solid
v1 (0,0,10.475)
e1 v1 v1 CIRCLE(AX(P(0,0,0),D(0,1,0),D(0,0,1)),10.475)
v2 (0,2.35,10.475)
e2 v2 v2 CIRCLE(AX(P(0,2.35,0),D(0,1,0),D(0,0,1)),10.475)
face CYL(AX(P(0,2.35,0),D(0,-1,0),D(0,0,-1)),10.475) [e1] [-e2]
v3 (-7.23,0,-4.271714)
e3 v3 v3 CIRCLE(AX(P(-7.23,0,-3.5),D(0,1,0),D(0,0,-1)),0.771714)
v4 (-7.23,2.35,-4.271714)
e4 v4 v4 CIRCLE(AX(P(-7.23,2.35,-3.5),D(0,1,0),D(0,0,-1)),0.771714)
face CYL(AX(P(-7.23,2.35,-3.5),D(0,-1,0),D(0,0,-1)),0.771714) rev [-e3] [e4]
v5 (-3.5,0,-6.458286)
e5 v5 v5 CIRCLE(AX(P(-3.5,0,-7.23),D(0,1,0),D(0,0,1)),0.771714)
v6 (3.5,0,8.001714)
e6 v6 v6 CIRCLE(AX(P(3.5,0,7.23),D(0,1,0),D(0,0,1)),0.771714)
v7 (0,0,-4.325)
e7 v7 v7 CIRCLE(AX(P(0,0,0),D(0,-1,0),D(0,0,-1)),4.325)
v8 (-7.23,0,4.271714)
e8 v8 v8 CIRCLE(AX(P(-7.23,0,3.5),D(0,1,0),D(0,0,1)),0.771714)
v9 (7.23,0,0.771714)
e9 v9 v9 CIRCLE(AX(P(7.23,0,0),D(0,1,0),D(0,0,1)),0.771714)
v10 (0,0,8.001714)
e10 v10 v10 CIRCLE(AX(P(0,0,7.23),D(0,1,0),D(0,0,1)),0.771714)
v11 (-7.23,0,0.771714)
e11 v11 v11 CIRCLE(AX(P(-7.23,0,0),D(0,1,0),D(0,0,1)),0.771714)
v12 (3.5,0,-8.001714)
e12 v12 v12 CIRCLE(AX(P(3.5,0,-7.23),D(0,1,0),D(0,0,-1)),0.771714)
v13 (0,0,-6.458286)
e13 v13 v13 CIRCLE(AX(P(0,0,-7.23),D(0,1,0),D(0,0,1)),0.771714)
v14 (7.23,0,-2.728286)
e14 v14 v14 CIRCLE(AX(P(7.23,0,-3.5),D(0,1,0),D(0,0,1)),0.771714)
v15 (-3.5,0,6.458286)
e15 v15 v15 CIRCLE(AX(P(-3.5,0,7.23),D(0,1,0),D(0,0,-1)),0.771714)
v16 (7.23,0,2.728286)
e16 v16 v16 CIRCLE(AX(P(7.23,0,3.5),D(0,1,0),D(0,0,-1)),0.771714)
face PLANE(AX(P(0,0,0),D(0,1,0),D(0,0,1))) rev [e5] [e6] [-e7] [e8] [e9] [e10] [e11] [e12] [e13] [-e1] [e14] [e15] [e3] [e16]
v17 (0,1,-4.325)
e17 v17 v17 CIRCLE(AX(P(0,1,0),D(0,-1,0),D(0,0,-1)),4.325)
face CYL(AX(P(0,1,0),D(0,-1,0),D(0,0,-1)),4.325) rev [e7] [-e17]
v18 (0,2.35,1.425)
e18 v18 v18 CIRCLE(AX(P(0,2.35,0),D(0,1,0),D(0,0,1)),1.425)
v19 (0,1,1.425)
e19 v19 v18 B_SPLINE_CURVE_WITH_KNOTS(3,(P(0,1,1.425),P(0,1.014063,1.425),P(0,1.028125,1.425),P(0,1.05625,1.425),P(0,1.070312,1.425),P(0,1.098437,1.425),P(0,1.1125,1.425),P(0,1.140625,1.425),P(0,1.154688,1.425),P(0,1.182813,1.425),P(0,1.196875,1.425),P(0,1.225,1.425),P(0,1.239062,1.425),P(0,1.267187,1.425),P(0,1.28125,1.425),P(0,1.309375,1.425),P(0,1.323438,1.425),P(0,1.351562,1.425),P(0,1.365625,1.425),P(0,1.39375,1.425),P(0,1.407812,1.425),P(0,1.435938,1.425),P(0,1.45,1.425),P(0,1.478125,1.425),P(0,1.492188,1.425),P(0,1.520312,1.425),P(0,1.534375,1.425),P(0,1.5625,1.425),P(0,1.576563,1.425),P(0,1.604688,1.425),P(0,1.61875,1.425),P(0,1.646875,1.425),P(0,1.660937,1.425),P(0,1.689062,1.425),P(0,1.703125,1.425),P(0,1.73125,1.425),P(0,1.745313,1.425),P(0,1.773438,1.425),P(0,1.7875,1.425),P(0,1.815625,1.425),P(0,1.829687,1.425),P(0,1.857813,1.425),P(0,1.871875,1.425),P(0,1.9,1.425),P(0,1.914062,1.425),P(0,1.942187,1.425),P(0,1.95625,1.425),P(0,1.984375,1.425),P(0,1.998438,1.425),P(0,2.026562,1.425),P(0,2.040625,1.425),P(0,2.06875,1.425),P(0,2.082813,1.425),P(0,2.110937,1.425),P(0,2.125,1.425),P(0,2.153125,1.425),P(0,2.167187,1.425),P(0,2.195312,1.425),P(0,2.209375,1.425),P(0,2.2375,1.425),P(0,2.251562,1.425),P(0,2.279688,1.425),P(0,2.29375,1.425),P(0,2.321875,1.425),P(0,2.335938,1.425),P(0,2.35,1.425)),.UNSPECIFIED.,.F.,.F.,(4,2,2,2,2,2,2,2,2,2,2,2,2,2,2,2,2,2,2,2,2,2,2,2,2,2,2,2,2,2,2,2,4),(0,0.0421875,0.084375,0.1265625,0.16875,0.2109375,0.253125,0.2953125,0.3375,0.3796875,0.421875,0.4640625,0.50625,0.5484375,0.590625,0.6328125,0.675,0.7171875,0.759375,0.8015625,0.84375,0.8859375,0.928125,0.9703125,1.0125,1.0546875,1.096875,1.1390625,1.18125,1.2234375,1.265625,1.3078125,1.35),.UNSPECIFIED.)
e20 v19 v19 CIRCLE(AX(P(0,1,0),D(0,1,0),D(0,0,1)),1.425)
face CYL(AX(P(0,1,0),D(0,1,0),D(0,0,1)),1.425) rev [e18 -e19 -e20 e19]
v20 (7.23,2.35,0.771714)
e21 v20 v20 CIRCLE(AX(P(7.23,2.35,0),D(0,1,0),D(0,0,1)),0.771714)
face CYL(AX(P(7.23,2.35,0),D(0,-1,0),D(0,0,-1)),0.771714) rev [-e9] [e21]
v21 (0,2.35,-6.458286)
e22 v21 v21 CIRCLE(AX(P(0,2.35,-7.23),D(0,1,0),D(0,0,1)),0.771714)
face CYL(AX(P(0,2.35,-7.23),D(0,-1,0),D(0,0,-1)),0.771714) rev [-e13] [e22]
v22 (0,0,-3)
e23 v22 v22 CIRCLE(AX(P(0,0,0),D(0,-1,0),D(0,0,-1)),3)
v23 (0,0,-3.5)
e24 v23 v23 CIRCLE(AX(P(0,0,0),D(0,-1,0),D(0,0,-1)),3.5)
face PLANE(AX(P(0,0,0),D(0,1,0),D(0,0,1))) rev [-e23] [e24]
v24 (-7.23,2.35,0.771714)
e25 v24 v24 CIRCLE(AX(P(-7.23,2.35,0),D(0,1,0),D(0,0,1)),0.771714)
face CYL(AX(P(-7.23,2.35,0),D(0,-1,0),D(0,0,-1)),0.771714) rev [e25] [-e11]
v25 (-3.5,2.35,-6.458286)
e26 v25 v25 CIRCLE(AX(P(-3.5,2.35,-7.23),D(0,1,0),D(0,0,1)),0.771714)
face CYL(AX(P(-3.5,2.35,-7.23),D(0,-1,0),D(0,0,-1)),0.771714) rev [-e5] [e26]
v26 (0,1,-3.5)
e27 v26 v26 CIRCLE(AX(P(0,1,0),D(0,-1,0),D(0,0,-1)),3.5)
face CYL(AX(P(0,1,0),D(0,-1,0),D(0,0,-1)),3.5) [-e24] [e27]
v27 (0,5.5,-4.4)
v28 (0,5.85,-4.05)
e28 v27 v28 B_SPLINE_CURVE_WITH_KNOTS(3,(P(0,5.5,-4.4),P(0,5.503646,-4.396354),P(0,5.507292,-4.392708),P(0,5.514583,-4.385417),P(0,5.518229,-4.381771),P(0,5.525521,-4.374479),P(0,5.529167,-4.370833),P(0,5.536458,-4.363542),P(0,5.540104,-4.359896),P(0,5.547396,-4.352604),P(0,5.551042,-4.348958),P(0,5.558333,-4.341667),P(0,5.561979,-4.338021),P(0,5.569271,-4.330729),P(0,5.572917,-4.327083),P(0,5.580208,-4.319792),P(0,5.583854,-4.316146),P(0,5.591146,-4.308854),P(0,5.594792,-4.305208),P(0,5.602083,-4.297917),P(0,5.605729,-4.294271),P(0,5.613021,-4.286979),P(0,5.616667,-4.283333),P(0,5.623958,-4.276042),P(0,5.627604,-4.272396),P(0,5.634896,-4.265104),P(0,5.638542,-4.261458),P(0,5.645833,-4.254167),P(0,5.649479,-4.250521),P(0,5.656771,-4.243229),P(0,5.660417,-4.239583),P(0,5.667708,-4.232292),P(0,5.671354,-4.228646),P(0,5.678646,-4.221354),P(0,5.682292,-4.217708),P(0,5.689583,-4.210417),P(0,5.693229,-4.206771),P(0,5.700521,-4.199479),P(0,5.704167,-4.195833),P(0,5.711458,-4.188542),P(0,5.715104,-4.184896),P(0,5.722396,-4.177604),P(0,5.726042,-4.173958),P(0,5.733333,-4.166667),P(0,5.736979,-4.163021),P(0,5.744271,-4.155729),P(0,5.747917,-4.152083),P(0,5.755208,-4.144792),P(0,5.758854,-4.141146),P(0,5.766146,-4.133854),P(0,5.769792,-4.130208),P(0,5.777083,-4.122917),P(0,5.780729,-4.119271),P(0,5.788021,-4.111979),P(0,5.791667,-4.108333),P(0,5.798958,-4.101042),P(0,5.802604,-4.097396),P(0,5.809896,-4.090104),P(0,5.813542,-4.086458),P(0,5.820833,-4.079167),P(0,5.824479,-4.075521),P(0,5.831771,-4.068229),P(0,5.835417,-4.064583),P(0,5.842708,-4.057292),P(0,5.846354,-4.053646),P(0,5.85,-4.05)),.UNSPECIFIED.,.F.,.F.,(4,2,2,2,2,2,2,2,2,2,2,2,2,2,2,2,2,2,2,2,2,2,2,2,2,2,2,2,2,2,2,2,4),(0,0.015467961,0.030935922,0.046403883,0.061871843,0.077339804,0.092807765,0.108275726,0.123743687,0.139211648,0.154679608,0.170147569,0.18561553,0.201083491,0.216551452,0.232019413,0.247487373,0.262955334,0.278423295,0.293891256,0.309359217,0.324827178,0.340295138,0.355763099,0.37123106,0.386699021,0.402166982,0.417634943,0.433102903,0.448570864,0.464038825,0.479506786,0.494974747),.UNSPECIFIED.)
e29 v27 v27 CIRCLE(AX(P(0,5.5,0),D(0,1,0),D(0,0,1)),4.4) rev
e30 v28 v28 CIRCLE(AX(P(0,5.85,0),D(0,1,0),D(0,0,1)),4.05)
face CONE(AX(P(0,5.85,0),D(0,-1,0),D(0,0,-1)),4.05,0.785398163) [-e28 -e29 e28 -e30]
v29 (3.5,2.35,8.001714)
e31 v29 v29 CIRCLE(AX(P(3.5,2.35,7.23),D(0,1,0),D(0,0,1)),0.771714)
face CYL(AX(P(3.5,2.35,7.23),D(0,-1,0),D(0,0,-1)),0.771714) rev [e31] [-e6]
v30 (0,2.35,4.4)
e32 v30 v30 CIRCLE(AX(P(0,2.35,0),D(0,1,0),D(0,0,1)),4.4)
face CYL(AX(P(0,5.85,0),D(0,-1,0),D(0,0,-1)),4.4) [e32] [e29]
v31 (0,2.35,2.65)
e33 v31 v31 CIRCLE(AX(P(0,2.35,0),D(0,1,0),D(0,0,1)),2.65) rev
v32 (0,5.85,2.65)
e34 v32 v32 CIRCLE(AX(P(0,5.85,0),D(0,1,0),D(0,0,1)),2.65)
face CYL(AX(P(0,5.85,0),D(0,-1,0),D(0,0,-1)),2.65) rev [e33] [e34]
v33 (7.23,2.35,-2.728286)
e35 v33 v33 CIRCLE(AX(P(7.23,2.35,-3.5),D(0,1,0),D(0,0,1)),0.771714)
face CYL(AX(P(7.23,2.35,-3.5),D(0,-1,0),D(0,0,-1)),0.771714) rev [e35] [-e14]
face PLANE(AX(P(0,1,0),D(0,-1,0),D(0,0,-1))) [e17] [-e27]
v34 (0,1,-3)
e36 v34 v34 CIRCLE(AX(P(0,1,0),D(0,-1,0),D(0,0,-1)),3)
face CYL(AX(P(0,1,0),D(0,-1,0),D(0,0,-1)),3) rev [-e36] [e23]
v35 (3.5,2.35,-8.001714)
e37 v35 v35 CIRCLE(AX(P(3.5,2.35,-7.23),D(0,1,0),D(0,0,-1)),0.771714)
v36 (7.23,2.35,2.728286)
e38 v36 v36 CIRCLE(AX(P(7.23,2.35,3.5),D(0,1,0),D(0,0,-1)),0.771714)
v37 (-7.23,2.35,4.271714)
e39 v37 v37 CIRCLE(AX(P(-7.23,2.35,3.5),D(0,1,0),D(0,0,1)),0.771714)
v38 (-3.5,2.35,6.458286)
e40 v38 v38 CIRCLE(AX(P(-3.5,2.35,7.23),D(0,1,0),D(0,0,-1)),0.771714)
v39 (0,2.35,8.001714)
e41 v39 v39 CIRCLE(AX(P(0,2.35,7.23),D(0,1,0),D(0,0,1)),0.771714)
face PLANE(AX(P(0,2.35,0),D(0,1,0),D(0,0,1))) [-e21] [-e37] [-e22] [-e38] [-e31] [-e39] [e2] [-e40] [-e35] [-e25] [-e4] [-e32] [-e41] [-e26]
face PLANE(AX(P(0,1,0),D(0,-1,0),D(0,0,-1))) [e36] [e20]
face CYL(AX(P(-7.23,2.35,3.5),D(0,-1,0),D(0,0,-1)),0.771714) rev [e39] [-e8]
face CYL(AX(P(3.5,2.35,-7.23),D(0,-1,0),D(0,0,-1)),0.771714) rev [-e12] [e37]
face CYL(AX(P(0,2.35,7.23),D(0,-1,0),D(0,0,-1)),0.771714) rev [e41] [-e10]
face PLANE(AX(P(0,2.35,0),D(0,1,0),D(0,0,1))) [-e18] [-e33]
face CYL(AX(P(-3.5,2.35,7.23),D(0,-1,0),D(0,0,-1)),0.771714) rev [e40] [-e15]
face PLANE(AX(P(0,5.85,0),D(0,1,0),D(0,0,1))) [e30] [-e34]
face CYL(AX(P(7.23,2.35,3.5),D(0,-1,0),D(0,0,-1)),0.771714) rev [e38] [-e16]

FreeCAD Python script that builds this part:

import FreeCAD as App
import Part
import Sketcher

V = App.Vector
Q = App.Units.Quantity


def edges_at(feature, points):
    """Names of the edges that pass closest to the given points."""
    edges = feature.Shape.Edges
    near = lambda p: min(range(len(edges)), key=lambda i: edges[i].distToShape(Part.Vertex(*p))[0])
    return sorted({f"Edge{near(p) + 1}" for p in points})

doc = App.newDocument("Part")
params = doc.addObject("Spreadsheet::Sheet", "Params")
for row, (alias, value) in enumerate([
    ("sketch1_diameter", "8.8 mm"),
    ("sketch1_diameter2", "20.95 mm"),
    ("pad1_length", "2.35 mm"),
    ("sketch2_diameter", "8.8 mm"),
    ("sketch2_diameter2", "5.3 mm"),
    ("pad2_length", "3.5 mm"),
    ("chamfer_size", "0.35 mm"),
    ("sketch3_diameter", "8.8 mm"),
    ("pad3_length", "2.35 mm"),
    ("sketch4_diameter", "6 mm"),
    ("pocket1_length", "1 mm"),
    ("sketch5_diameter", "2.85 mm"),
    ("pocket2_length", "1.35 mm"),
    ("sketch6_diameter", "7 mm"),
    ("sketch6_diameter2", "8.65 mm"),
    ("pocket3_length", "1 mm"),
], start=1):
    params.set(f"A{row}", alias)
    params.set(f"B{row}", "=" + value)
    params.setAlias(f"B{row}", alias)

body = doc.addObject("PartDesign::Body", "Body")

sketch1 = body.newObject("Sketcher::SketchObject", "Sketch")
sketch1.AttachmentSupport = (doc.getObject("XZ_Plane"), [""])
sketch1.MapMode = "FlatFace"
sketch1.addGeometry([
    Part.Circle(V(0, 0, 0), V(0, 0, 1), 10.5),
    Part.Circle(V(-7.2, -3.5, 0), V(0, 0, 1), 0.8),
    Part.Circle(V(-3.5, -7.2, 0), V(0, 0, 1), 0.8),
    Part.Circle(V(-7.2, 0, 0), V(0, 0, 1), 0.8),
    Part.Circle(V(-7.2, 3.5, 0), V(0, 0, 1), 0.8),
    Part.Circle(V(-3.5, 7.2, 0), V(0, 0, 1), 0.8),
    Part.Circle(V(0, -7.2, 0), V(0, 0, 1), 0.8),
    Part.Circle(V(3.5, -7.2, 0), V(0, 0, 1), 0.8),
    Part.Circle(V(7.2, -3.5, 0), V(0, 0, 1), 0.8),
    Part.Circle(V(7.2, 0, 0), V(0, 0, 1), 0.8),
    Part.Circle(V(0, 0, 0), V(0, 0, 1), 4.4),
    Part.Circle(V(0, 7.2, 0), V(0, 0, 1), 0.8),
    Part.Circle(V(3.5, 7.2, 0), V(0, 0, 1), 0.8),
    Part.Circle(V(7.2, 3.5, 0), V(0, 0, 1), 0.8),
], False)
sketch1.addConstraint([
    Sketcher.Constraint("Coincident", 0, 3, -1, 1),
    Sketcher.Constraint("Coincident", 10, 3, -1, 1),
    Sketcher.Constraint("Equal", 1, 2),
    Sketcher.Constraint("Equal", 2, 3),
    Sketcher.Constraint("Equal", 3, 4),
    Sketcher.Constraint("Equal", 4, 5),
    Sketcher.Constraint("Equal", 5, 6),
    Sketcher.Constraint("Equal", 6, 7),
    Sketcher.Constraint("Equal", 7, 8),
    Sketcher.Constraint("Equal", 8, 9),
    Sketcher.Constraint("Equal", 9, 11),
    Sketcher.Constraint("Equal", 11, 12),
    Sketcher.Constraint("Equal", 12, 13),
    Sketcher.Constraint("Symmetric", 5, 3, 7, 3, -1, 1),
    Sketcher.Constraint("Symmetric", 4, 3, 8, 3, -1, 1),
    Sketcher.Constraint("Symmetric", 3, 3, 9, 3, -1, 1),
    Sketcher.Constraint("Symmetric", 6, 3, 11, 3, -1, 1),
    Sketcher.Constraint("Symmetric", 2, 3, 12, 3, -1, 1),
    Sketcher.Constraint("Symmetric", 1, 3, 13, 3, -1, 1),
    Sketcher.Constraint("Symmetric", 2, 3, 7, 3, -2),
    Sketcher.Constraint("Symmetric", 1, 3, 8, 3, -2),
    Sketcher.Constraint("PointOnObject", 3, 3, -1),
    Sketcher.Constraint("PointOnObject", 6, 3, -2),
    Sketcher.Constraint("Horizontal", 2, 3, 6, 3),
    Sketcher.Constraint("Vertical", 1, 3, 3, 3),
    Sketcher.Constraint("Diameter", 10, Q("8.8 mm")),
    Sketcher.Constraint("Diameter", 0, Q("20.95 mm")),
    Sketcher.Constraint("DistanceY", 1, 3, 4, 3, Q("7 mm")),
    Sketcher.Constraint("DistanceX", 2, 3, 7, 3, Q("7 mm")),
    Sketcher.Constraint("DistanceX", 1, 3, -1, 1, Q("7.23 mm")),
    Sketcher.Constraint("DistanceY", 2, 3, -1, 1, Q("7.23 mm")),
    Sketcher.Constraint("Diameter", 1, Q("1.543428 mm")),
])
sketch1.setExpression("Constraints[25]", "Params.sketch1_diameter")
sketch1.setExpression("Constraints[26]", "Params.sketch1_diameter2")
pad1 = body.newObject("PartDesign::Pad", "Pad")
pad1.Profile = sketch1
pad1.setExpression("Length", "Params.pad1_length")
pad1.Reversed = True
body2 = doc.addObject("PartDesign::Body", "Body001")

sketch2 = body2.newObject("Sketcher::SketchObject", "Sketch001")
sketch2.AttachmentSupport = (doc.getObject("XZ_Plane001"), [""])
sketch2.MapMode = "FlatFace"
sketch2.AttachmentOffset = App.Placement(V(0, 0, -2.35), App.Rotation())
sketch2.addGeometry([
    Part.Circle(V(0, 0, 0), V(0, 0, 1), 4.4),
    Part.Circle(V(0, 0, 0), V(0, 0, 1), 2.6),
], False)
sketch2.addConstraint([
    Sketcher.Constraint("Coincident", 0, 3, -1, 1),
    Sketcher.Constraint("Coincident", 1, 3, -1, 1),
    Sketcher.Constraint("Diameter", 0, Q("8.8 mm")),
    Sketcher.Constraint("Diameter", 1, Q("5.3 mm")),
])
sketch2.setExpression("Constraints[2]", "Params.sketch2_diameter")
sketch2.setExpression("Constraints[3]", "Params.sketch2_diameter2")
pad2 = body2.newObject("PartDesign::Pad", "Pad001")
pad2.Profile = sketch2
pad2.setExpression("Length", "Params.pad2_length")
pad2.Reversed = True
doc.recompute()

chamfer = body2.newObject("PartDesign::Chamfer", "Chamfer")
chamfer.Base = (pad2, edges_at(pad2, [(0, 5.85, -4.4)]))
chamfer.setExpression("Size", "Params.chamfer_size")
body.AllowCompound = True
doc.recompute()

boolean = body.newObject("PartDesign::Boolean", "Boolean")
boolean.Type = "Fuse"
boolean.addObjects([body2])

sketch3 = body.newObject("Sketcher::SketchObject", "Sketch002")
sketch3.AttachmentSupport = (doc.getObject("XZ_Plane"), [""])
sketch3.MapMode = "FlatFace"
sketch3.addGeometry(Part.Circle(V(0, 0, 0), V(0, 0, 1), 4.4), False)
sketch3.addConstraint([
    Sketcher.Constraint("Coincident", 0, 3, -1, 1),
    Sketcher.Constraint("Diameter", 0, Q("8.8 mm")),
])
sketch3.setExpression("Constraints[1]", "Params.sketch3_diameter")
pad3 = body.newObject("PartDesign::Pad", "Pad002")
pad3.Profile = sketch3
pad3.setExpression("Length", "Params.pad3_length")
pad3.Reversed = True

sketch4 = body.newObject("Sketcher::SketchObject", "Sketch003")
sketch4.AttachmentSupport = (doc.getObject("XZ_Plane"), [""])
sketch4.MapMode = "FlatFace"
sketch4.addGeometry(Part.Circle(V(0, 0, 0), V(0, 0, 1), 3), False)
sketch4.addConstraint([
    Sketcher.Constraint("Coincident", 0, 3, -1, 1),
    Sketcher.Constraint("Diameter", 0, Q("6 mm")),
])
sketch4.setExpression("Constraints[1]", "Params.sketch4_diameter")
pocket1 = body.newObject("PartDesign::Pocket", "Pocket")
pocket1.Profile = sketch4
pocket1.setExpression("Length", "Params.pocket1_length")

sketch5 = body.newObject("Sketcher::SketchObject", "Sketch004")
sketch5.AttachmentSupport = (doc.getObject("XZ_Plane"), [""])
sketch5.MapMode = "FlatFace"
sketch5.AttachmentOffset = App.Placement(V(0, 0, -2.35), App.Rotation())
sketch5.addGeometry(Part.Circle(V(0, 0, 0), V(0, 0, 1), 1.4), False)
sketch5.addConstraint([
    Sketcher.Constraint("Coincident", 0, 3, -1, 1),
    Sketcher.Constraint("Diameter", 0, Q("2.85 mm")),
])
sketch5.setExpression("Constraints[1]", "Params.sketch5_diameter")
pocket2 = body.newObject("PartDesign::Pocket", "Pocket001")
pocket2.Profile = sketch5
pocket2.setExpression("Length", "Params.pocket2_length")
pocket2.Reversed = True

sketch6 = body.newObject("Sketcher::SketchObject", "Sketch005")
sketch6.AttachmentSupport = (doc.getObject("XZ_Plane"), [""])
sketch6.MapMode = "FlatFace"
sketch6.addGeometry([
    Part.Circle(V(0, 0, 0), V(0, 0, 1), 4.3),
    Part.Circle(V(0, 0, 0), V(0, 0, 1), 3.5),
], False)
sketch6.addConstraint([
    Sketcher.Constraint("Coincident", 0, 3, -1, 1),
    Sketcher.Constraint("Coincident", 1, 3, -1, 1),
    Sketcher.Constraint("Diameter", 1, Q("7 mm")),
    Sketcher.Constraint("Diameter", 0, Q("8.65 mm")),
])
sketch6.setExpression("Constraints[2]", "Params.sketch6_diameter")
sketch6.setExpression("Constraints[3]", "Params.sketch6_diameter2")
pocket3 = body.newObject("PartDesign::Pocket", "Pocket002")
pocket3.Profile = sketch6
pocket3.setExpression("Length", "Params.pocket3_length")

doc.recompute()
